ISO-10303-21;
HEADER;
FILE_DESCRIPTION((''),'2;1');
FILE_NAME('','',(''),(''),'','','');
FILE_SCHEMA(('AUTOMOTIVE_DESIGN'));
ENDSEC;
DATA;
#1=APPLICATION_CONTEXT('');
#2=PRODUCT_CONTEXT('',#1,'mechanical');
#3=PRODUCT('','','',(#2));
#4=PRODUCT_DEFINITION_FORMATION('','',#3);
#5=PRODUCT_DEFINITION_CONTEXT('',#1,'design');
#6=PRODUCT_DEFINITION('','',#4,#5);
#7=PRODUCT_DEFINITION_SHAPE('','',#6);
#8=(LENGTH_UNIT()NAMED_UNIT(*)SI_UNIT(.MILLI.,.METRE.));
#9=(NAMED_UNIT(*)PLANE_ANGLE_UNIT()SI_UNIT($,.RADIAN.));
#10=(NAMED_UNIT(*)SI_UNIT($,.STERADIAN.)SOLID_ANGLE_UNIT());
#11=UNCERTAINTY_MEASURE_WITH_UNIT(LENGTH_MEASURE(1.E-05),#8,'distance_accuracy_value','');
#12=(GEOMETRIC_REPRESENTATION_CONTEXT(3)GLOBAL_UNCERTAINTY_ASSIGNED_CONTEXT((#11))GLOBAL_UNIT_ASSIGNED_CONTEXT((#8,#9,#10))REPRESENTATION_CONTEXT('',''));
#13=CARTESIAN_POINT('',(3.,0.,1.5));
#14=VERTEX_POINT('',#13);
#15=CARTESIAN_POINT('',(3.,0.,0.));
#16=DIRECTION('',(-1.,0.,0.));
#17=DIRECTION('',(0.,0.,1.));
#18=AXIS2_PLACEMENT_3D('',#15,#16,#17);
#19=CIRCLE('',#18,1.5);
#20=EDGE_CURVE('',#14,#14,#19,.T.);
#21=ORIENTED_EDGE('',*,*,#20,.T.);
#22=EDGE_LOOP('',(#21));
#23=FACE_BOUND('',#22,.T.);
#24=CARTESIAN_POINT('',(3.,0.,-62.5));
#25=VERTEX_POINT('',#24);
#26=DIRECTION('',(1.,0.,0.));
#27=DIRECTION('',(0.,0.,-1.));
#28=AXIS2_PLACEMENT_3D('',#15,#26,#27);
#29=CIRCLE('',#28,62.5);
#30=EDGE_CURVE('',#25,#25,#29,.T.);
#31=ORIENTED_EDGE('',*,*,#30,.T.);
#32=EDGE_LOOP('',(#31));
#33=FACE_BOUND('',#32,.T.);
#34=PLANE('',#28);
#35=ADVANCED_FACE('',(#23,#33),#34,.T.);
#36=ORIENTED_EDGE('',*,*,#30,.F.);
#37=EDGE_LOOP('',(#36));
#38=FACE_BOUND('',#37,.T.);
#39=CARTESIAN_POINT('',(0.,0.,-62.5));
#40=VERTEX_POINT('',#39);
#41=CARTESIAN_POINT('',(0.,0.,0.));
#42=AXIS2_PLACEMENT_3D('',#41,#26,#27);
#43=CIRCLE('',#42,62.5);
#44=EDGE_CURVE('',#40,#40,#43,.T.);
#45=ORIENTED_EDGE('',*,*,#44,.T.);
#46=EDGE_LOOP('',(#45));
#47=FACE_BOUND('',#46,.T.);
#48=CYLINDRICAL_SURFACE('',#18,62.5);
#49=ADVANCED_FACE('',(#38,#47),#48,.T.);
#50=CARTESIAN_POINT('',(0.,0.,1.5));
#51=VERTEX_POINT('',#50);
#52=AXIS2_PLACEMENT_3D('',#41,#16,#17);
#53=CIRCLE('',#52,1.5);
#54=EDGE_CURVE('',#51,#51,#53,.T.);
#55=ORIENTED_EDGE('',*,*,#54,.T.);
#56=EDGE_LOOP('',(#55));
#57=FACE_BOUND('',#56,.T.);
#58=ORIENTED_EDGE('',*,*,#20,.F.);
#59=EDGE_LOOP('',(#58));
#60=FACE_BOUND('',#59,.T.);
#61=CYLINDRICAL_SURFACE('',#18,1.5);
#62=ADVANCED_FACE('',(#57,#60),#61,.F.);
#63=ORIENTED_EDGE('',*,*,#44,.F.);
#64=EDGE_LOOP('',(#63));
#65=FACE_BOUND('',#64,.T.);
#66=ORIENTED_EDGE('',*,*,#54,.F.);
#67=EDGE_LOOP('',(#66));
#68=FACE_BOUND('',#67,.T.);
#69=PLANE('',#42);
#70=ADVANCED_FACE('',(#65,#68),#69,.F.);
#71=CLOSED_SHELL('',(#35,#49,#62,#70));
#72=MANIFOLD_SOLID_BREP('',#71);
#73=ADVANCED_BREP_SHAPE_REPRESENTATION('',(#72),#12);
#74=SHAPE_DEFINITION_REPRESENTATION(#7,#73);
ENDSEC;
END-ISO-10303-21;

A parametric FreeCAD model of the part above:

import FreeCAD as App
import Part
import Sketcher

V = App.Vector
Q = App.Units.Quantity

doc = App.newDocument("Part")
params = doc.addObject("Spreadsheet::Sheet", "Params")
for row, (alias, value) in enumerate([
    ("sketch1_diameter", "125 mm"),
    ("pad1_length", "3 mm"),
    ("sketch2_diameter", "3 mm"),
], start=1):
    params.set(f"A{row}", alias)
    params.set(f"B{row}", "=" + value)
    params.setAlias(f"B{row}", alias)

body = doc.addObject("PartDesign::Body", "Body")

# Sketch on YZ plane
sketch1 = doc.addObject("Sketcher::SketchObject", "Sketch")
body.addObject(sketch1)
sketch1.AttachmentSupport = (doc.YZ_Plane, [""])
sketch1.MapMode = "FlatFace"
sketch1.addGeometry(Part.Circle(V(0, 0, 0), V(0, 0, 1), 62), False)
sketch1.addConstraint(Sketcher.Constraint("Coincident", 0, 3, -1, 1))
sketch1.addConstraint(Sketcher.Constraint("Diameter", 0, Q("125 mm")))
sketch1.setExpression("Constraints[1]", "Params.sketch1_diameter")
pad1 = doc.addObject("PartDesign::Pad", "Pad")
body.addObject(pad1)
pad1.Profile = sketch1
pad1.setExpression("Length", "Params.pad1_length")

# Sketch on YZ plane
sketch2 = doc.addObject("Sketcher::SketchObject", "Sketch001")
body.addObject(sketch2)
sketch2.AttachmentSupport = (doc.YZ_Plane, [""])
sketch2.MapMode = "FlatFace"
sketch2.addGeometry(Part.Circle(V(0, 0, 0), V(0, 0, 1), 1.5), False)
sketch2.addConstraint(Sketcher.Constraint("Coincident", 0, 3, -1, 1))
sketch2.addConstraint(Sketcher.Constraint("Diameter", 0, Q("3 mm")))
sketch2.setExpression("Constraints[1]", "Params.sketch2_diameter")
pocket1 = doc.addObject("PartDesign::Pocket", "Pocket")
body.addObject(pocket1)
pocket1.Profile = sketch2
pocket1.Type = "ThroughAll"
pocket1.Reversed = True

doc.recompute()
